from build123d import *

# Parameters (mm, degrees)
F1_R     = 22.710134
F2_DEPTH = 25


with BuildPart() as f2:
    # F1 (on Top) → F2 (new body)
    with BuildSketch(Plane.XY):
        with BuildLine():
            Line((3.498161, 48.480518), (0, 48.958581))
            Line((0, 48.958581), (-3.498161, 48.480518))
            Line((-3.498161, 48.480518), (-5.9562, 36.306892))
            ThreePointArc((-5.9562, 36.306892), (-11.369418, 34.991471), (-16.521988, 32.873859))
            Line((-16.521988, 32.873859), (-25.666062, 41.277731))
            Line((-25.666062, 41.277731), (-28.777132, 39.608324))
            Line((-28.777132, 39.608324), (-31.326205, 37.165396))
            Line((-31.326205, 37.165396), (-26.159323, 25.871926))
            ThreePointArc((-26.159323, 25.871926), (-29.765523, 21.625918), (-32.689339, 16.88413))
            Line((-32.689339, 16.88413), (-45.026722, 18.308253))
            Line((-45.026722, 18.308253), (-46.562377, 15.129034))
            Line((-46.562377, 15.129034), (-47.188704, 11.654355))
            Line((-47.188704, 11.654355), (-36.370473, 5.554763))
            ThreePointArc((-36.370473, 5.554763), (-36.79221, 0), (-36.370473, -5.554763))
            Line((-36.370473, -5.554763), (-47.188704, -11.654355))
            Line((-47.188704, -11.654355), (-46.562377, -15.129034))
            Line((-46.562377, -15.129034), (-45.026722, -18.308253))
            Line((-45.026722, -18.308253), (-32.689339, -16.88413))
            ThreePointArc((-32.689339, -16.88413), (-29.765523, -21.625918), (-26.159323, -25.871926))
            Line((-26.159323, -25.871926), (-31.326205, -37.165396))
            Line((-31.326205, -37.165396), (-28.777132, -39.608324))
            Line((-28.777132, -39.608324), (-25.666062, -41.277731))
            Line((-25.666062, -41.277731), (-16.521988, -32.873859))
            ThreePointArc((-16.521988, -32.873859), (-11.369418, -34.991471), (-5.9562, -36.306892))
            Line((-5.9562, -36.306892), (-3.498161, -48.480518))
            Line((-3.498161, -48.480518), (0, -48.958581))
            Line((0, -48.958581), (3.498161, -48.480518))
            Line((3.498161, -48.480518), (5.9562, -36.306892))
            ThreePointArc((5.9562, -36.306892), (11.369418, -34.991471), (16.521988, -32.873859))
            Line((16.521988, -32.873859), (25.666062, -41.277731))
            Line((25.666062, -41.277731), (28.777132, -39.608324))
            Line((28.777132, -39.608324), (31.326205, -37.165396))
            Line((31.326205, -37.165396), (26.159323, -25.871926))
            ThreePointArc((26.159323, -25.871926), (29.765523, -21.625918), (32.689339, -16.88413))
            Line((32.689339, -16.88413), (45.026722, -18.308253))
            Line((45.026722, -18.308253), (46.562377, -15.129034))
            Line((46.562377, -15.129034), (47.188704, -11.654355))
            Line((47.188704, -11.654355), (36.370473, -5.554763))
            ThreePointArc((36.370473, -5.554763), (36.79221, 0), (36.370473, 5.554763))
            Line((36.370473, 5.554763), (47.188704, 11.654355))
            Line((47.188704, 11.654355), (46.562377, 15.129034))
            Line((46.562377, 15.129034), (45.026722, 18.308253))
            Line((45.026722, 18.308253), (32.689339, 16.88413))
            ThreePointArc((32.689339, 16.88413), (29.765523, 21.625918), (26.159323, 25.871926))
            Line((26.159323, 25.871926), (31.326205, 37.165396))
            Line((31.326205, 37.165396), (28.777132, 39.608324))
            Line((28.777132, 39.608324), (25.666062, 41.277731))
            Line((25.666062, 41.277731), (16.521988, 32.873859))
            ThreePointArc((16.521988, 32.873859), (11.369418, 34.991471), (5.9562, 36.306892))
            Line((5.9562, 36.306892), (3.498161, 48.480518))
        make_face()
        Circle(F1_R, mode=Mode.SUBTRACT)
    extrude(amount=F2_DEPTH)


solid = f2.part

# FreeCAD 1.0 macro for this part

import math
import FreeCAD as App
import Part
import Sketcher

doc = App.newDocument("Part")
body = doc.addObject("PartDesign::Body", "Body")

# Sketch on XY plane
sketch1 = doc.addObject("Sketcher::SketchObject", "Sketch")
body.addObject(sketch1)
sketch1.AttachmentSupport = (doc.XY_Plane, [""])
sketch1.MapMode = "FlatFace"
sketch1.addGeometry([
    Part.LineSegment(App.Vector(3.498161, 48.480518, 0), App.Vector(0, 48.958581, 0)),  # 0
    Part.LineSegment(App.Vector(0, 48.958581, 0), App.Vector(-3.498161, 48.480518, 0)),  # 1
    Part.LineSegment(App.Vector(-3.498161, 48.480518, 0), App.Vector(-5.9562, 36.306892, 0)),  # 2
    Part.ArcOfCircle(Part.Circle(App.Vector(0.000002, 0, 0), App.Vector(0, 0, 1), 36.792211), math.radians(99.316475), math.radians(116.683529)),  # 3
    Part.LineSegment(App.Vector(-16.521988, 32.873859, 0), App.Vector(-25.666062, 41.277731, 0)),  # 4
    Part.LineSegment(App.Vector(-25.666062, 41.277731, 0), App.Vector(-28.777132, 39.608324, 0)),  # 5
    Part.LineSegment(App.Vector(-28.777132, 39.608324, 0), App.Vector(-31.326205, 37.165396, 0)),  # 6
    Part.LineSegment(App.Vector(-31.326205, 37.165396, 0), App.Vector(-26.159323, 25.871926, 0)),  # 7
    Part.ArcOfCircle(Part.Circle(App.Vector(0.000042, -0.00003, 0), App.Vector(0, 0, 1), 36.792261), math.radians(135.316485), math.radians(152.683515)),  # 8
    Part.LineSegment(App.Vector(-32.689339, 16.88413, 0), App.Vector(-45.026722, 18.308253, 0)),  # 9
    Part.LineSegment(App.Vector(-45.026722, 18.308253, 0), App.Vector(-46.562377, 15.129034, 0)),  # 10
    Part.LineSegment(App.Vector(-46.562377, 15.129034, 0), App.Vector(-47.188704, 11.654355, 0)),  # 11
    Part.LineSegment(App.Vector(-47.188704, 11.654355, 0), App.Vector(-36.370473, 5.554763, 0)),  # 12
    Part.ArcOfCircle(Part.Circle(App.Vector(-0.000022, 0, 0), App.Vector(0, 0, 1), 36.792188), math.radians(171.316468), math.radians(188.683532)),  # 13
    Part.LineSegment(App.Vector(-36.370473, -5.554763, 0), App.Vector(-47.188704, -11.654355, 0)),  # 14
    Part.LineSegment(App.Vector(-47.188704, -11.654355, 0), App.Vector(-46.562377, -15.129034, 0)),  # 15
    Part.LineSegment(App.Vector(-46.562377, -15.129034, 0), App.Vector(-45.026722, -18.308253, 0)),  # 16
    Part.LineSegment(App.Vector(-45.026722, -18.308253, 0), App.Vector(-32.689339, -16.88413, 0)),  # 17
    Part.ArcOfCircle(Part.Circle(App.Vector(0.000042, 0.00003, 0), App.Vector(0, 0, 1), 36.792261), math.radians(-152.683515), math.radians(-135.316485)),  # 18
    Part.LineSegment(App.Vector(-26.159323, -25.871926, 0), App.Vector(-31.326205, -37.165396, 0)),  # 19
    Part.LineSegment(App.Vector(-31.326205, -37.165396, 0), App.Vector(-28.777132, -39.608324, 0)),  # 20
    Part.LineSegment(App.Vector(-28.777132, -39.608324, 0), App.Vector(-25.666062, -41.277731, 0)),  # 21
    Part.LineSegment(App.Vector(-25.666062, -41.277731, 0), App.Vector(-16.521988, -32.873859, 0)),  # 22
    Part.ArcOfCircle(Part.Circle(App.Vector(0.000002, 0, 0), App.Vector(0, 0, 1), 36.792211), math.radians(-116.683529), math.radians(-99.316475)),  # 23
    Part.LineSegment(App.Vector(-5.9562, -36.306892, 0), App.Vector(-3.498161, -48.480518, 0)),  # 24
    Part.LineSegment(App.Vector(-3.498161, -48.480518, 0), App.Vector(0, -48.958581, 0)),  # 25
    Part.LineSegment(App.Vector(0, -48.958581, 0), App.Vector(3.498161, -48.480518, 0)),  # 26
    Part.LineSegment(App.Vector(3.498161, -48.480518, 0), App.Vector(5.9562, -36.306892, 0)),  # 27
    Part.ArcOfCircle(Part.Circle(App.Vector(-0.000002, 0, 0), App.Vector(0, 0, 1), 36.792211), math.radians(-80.683525), math.radians(-63.316471)),  # 28
    Part.LineSegment(App.Vector(16.521988, -32.873859, 0), App.Vector(25.666062, -41.277731, 0)),  # 29
    Part.LineSegment(App.Vector(25.666062, -41.277731, 0), App.Vector(28.777132, -39.608324, 0)),  # 30
    Part.LineSegment(App.Vector(28.777132, -39.608324, 0), App.Vector(31.326205, -37.165396, 0)),  # 31
    Part.LineSegment(App.Vector(31.326205, -37.165396, 0), App.Vector(26.159323, -25.871926, 0)),  # 32
    Part.ArcOfCircle(Part.Circle(App.Vector(-0.000042, 0.00003, 0), App.Vector(0, 0, 1), 36.792261), math.radians(-44.683515), math.radians(-27.316485)),  # 33
    Part.LineSegment(App.Vector(32.689339, -16.88413, 0), App.Vector(45.026722, -18.308253, 0)),  # 34
    Part.LineSegment(App.Vector(45.026722, -18.308253, 0), App.Vector(46.562377, -15.129034, 0)),  # 35
    Part.LineSegment(App.Vector(46.562377, -15.129034, 0), App.Vector(47.188704, -11.654355, 0)),  # 36
    Part.LineSegment(App.Vector(47.188704, -11.654355, 0), App.Vector(36.370473, -5.554763, 0)),  # 37
    Part.ArcOfCircle(Part.Circle(App.Vector(0.000022, 0, 0), App.Vector(0, 0, 1), 36.792188), math.radians(-8.683532), math.radians(8.683532)),  # 38
    Part.LineSegment(App.Vector(36.370473, 5.554763, 0), App.Vector(47.188704, 11.654355, 0)),  # 39
    Part.LineSegment(App.Vector(47.188704, 11.654355, 0), App.Vector(46.562377, 15.129034, 0)),  # 40
    Part.LineSegment(App.Vector(46.562377, 15.129034, 0), App.Vector(45.026722, 18.308253, 0)),  # 41
    Part.LineSegment(App.Vector(45.026722, 18.308253, 0), App.Vector(32.689339, 16.88413, 0)),  # 42
    Part.ArcOfCircle(Part.Circle(App.Vector(-0.000042, -0.00003, 0), App.Vector(0, 0, 1), 36.792261), math.radians(27.316485), math.radians(44.683515)),  # 43
    Part.LineSegment(App.Vector(26.159323, 25.871926, 0), App.Vector(31.326205, 37.165396, 0)),  # 44
    Part.LineSegment(App.Vector(31.326205, 37.165396, 0), App.Vector(28.777132, 39.608324, 0)),  # 45
    Part.LineSegment(App.Vector(28.777132, 39.608324, 0), App.Vector(25.666062, 41.277731, 0)),  # 46
    Part.LineSegment(App.Vector(25.666062, 41.277731, 0), App.Vector(16.521988, 32.873859, 0)),  # 47
    Part.ArcOfCircle(Part.Circle(App.Vector(-0.000002, 0, 0), App.Vector(0, 0, 1), 36.792211), math.radians(63.316471), math.radians(80.683525)),  # 48
    Part.LineSegment(App.Vector(5.9562, 36.306892, 0), App.Vector(3.498161, 48.480518, 0)),  # 49
    Part.Circle(App.Vector(0, 0, 0), App.Vector(0, 0, 1), 22.710134),  # 50
], False)
sketch1.addConstraint([
    Sketcher.Constraint("Coincident", 0, 2, 1, 1),
    Sketcher.Constraint("Coincident", 1, 2, 2, 1),
    Sketcher.Constraint("Coincident", 2, 2, 3, 1),
    Sketcher.Constraint("Coincident", 3, 2, 4, 1),
    Sketcher.Constraint("Coincident", 4, 2, 5, 1),
    Sketcher.Constraint("Coincident", 5, 2, 6, 1),
    Sketcher.Constraint("Coincident", 6, 2, 7, 1),
    Sketcher.Constraint("Coincident", 7, 2, 8, 1),
    Sketcher.Constraint("Coincident", 8, 2, 9, 1),
    Sketcher.Constraint("Coincident", 9, 2, 10, 1),
    Sketcher.Constraint("Coincident", 10, 2, 11, 1),
    Sketcher.Constraint("Coincident", 11, 2, 12, 1),
    Sketcher.Constraint("Coincident", 12, 2, 13, 1),
    Sketcher.Constraint("Coincident", 13, 2, 14, 1),
    Sketcher.Constraint("Coincident", 14, 2, 15, 1),
    Sketcher.Constraint("Coincident", 15, 2, 16, 1),
    Sketcher.Constraint("Coincident", 16, 2, 17, 1),
    Sketcher.Constraint("Coincident", 17, 2, 18, 1),
    Sketcher.Constraint("Coincident", 18, 2, 19, 1),
    Sketcher.Constraint("Coincident", 19, 2, 20, 1),
    Sketcher.Constraint("Coincident", 20, 2, 21, 1),
    Sketcher.Constraint("Coincident", 21, 2, 22, 1),
    Sketcher.Constraint("Coincident", 22, 2, 23, 1),
    Sketcher.Constraint("Coincident", 23, 2, 24, 1),
    Sketcher.Constraint("Coincident", 24, 2, 25, 1),
    Sketcher.Constraint("Coincident", 25, 2, 26, 1),
    Sketcher.Constraint("Coincident", 26, 2, 27, 1),
    Sketcher.Constraint("Coincident", 27, 2, 28, 1),
    Sketcher.Constraint("Coincident", 28, 2, 29, 1),
    Sketcher.Constraint("Coincident", 29, 2, 30, 1),
    Sketcher.Constraint("Coincident", 30, 2, 31, 1),
    Sketcher.Constraint("Coincident", 31, 2, 32, 1),
    Sketcher.Constraint("Coincident", 32, 2, 33, 1),
    Sketcher.Constraint("Coincident", 33, 2, 34, 1),
    Sketcher.Constraint("Coincident", 34, 2, 35, 1),
    Sketcher.Constraint("Coincident", 35, 2, 36, 1),
    Sketcher.Constraint("Coincident", 36, 2, 37, 1),
    Sketcher.Constraint("Coincident", 37, 2, 38, 1),
    Sketcher.Constraint("Coincident", 38, 2, 39, 1),
    Sketcher.Constraint("Coincident", 39, 2, 40, 1),
    Sketcher.Constraint("Coincident", 40, 2, 41, 1),
    Sketcher.Constraint("Coincident", 41, 2, 42, 1),
    Sketcher.Constraint("Coincident", 42, 2, 43, 1),
    Sketcher.Constraint("Coincident", 43, 2, 44, 1),
    Sketcher.Constraint("Coincident", 44, 2, 45, 1),
    Sketcher.Constraint("Coincident", 45, 2, 46, 1),
    Sketcher.Constraint("Coincident", 46, 2, 47, 1),
    Sketcher.Constraint("Coincident", 47, 2, 48, 1),
    Sketcher.Constraint("Coincident", 48, 2, 49, 1),
    Sketcher.Constraint("Coincident", 49, 2, 0, 1),
    Sketcher.Constraint("Coincident", 3, 3, -1, 1),
    Sketcher.Constraint("Coincident", 23, 3, -1, 1),
    Sketcher.Constraint("Coincident", 28, 3, -1, 1),
    Sketcher.Constraint("Coincident", 48, 3, -1, 1),
    Sketcher.Constraint("Coincident", 50, 3, -1, 1),
    Sketcher.Constraint("Equal", 8, 18),
    Sketcher.Constraint("Equal", 3, 23),
    Sketcher.Constraint("Equal", 23, 28),
    Sketcher.Constraint("Equal", 18, 33),
    Sketcher.Constraint("Equal", 13, 38),
    Sketcher.Constraint("Equal", 33, 43),
    Sketcher.Constraint("Equal", 28, 48),
    Sketcher.Constraint("Symmetric", 8, 3, 33, 3, -1, 1),
    Sketcher.Constraint("Symmetric", 13, 3, 38, 3, -1, 1),
    Sketcher.Constraint("Symmetric", 18, 3, 43, 3, -1, 1),
    Sketcher.Constraint("Symmetric", 0, 2, 25, 2, -1, 1),
    Sketcher.Constraint("Symmetric", 1, 2, 26, 2, -1, 1),
    Sketcher.Constraint("Symmetric", 4, 2, 29, 2, -1, 1),
    Sketcher.Constraint("Symmetric", 5, 2, 30, 2, -1, 1),
    Sketcher.Constraint("Symmetric", 6, 2, 31, 2, -1, 1),
    Sketcher.Constraint("Symmetric", 9, 2, 34, 2, -1, 1),
    Sketcher.Constraint("Symmetric", 10, 2, 35, 2, -1, 1),
    Sketcher.Constraint("Symmetric", 11, 2, 36, 2, -1, 1),
    Sketcher.Constraint("Symmetric", 14, 2, 39, 2, -1, 1),
    Sketcher.Constraint("Symmetric", 15, 2, 40, 2, -1, 1),
    Sketcher.Constraint("Symmetric", 16, 2, 41, 2, -1, 1),
    Sketcher.Constraint("Symmetric", 19, 2, 44, 2, -1, 1),
    Sketcher.Constraint("Symmetric", 20, 2, 45, 2, -1, 1),
    Sketcher.Constraint("Symmetric", 21, 2, 46, 2, -1, 1),
    Sketcher.Constraint("Symmetric", 24, 2, 49, 2, -1, 1),
    Sketcher.Constraint("Symmetric", 18, 3, 33, 3, -2),
    Sketcher.Constraint("Symmetric", 24, 2, 26, 2, -2),
    Sketcher.Constraint("Symmetric", 21, 2, 29, 2, -2),
    Sketcher.Constraint("Symmetric", 20, 2, 30, 2, -2),
    Sketcher.Constraint("Symmetric", 19, 2, 31, 2, -2),
    Sketcher.Constraint("Symmetric", 16, 2, 34, 2, -2),
    Sketcher.Constraint("Symmetric", 15, 2, 35, 2, -2),
    Sketcher.Constraint("Symmetric", 14, 2, 36, 2, -2),
    Sketcher.Constraint("Symmetric", 13, 2, 37, 2, -2),
    Sketcher.Constraint("PointOnObject", 0, 2, -2),
    Sketcher.Constraint("Parallel", 2, 27),
    Sketcher.Constraint("Parallel", 4, 29),
    Sketcher.Constraint("Parallel", 7, 32),
    Sketcher.Constraint("Parallel", 9, 34),
    Sketcher.Constraint("Parallel", 12, 37),
    Sketcher.Constraint("Parallel", 14, 39),
    Sketcher.Constraint("Parallel", 17, 42),
    Sketcher.Constraint("Parallel", 19, 44),
    Sketcher.Constraint("Parallel", 22, 47),
    Sketcher.Constraint("Parallel", 24, 49),
    Sketcher.Constraint("Horizontal", 23, 2, 27, 2),
    Sketcher.Constraint("Horizontal", 22, 2, 28, 2),
    Sketcher.Constraint("Horizontal", 18, 2, 32, 2),
    Sketcher.Constraint("Horizontal", 17, 2, 33, 2),
    Sketcher.Constraint("Equal", 2, 4),
    Sketcher.Constraint("Equal", 1, 5),
    Sketcher.Constraint("Equal", 5, 6),
    Sketcher.Constraint("Equal", 4, 7),
    Sketcher.Constraint("Equal", 7, 9),
    Sketcher.Constraint("Equal", 6, 10),
    Sketcher.Constraint("Equal", 10, 11),
    Sketcher.Constraint("Equal", 9, 12),
    Sketcher.Constraint("Radius", 3, 36.792211),
    Sketcher.Constraint("Radius", 8, 36.792261),
    Sketcher.Constraint("Radius", 13, 36.792188),
    Sketcher.Constraint("Diameter", 50, 45.420268),
    Sketcher.Constraint("DistanceX", 2, 2, -1, 1, 5.9562),
    Sketcher.Constraint("DistanceY", -1, 1, 0, 2, 48.958581),
    Sketcher.Constraint("DistanceX", 1, 2, -1, 1, 3.498161),
    Sketcher.Constraint("DistanceX", 3, 2, -1, 1, 16.521988),
    Sketcher.Constraint("DistanceX", 4, 2, -1, 1, 25.666062),
    Sketcher.Constraint("DistanceY", -1, 1, 4, 2, 41.277731),
    Sketcher.Constraint("DistanceX", 8, 2, -1, 1, 32.689339),
    Sketcher.Constraint("DistanceY", -1, 1, 8, 2, 16.88413),
    Sketcher.Constraint("DistanceX", 5, 2, -1, 1, 28.777132),
    Sketcher.Constraint("DistanceX", 6, 2, -1, 1, 31.326205),
    Sketcher.Constraint("DistanceX", 7, 2, -1, 1, 26.159323),
    Sketcher.Constraint("DistanceX", 9, 2, -1, 1, 45.026722),
    Sketcher.Constraint("DistanceX", 10, 2, -1, 1, 46.562377),
    Sketcher.Constraint("DistanceX", 11, 2, -1, 1, 47.188704),
    Sketcher.Constraint("DistanceX", 12, 2, -1, 1, 36.370473),
])
pad1 = doc.addObject("PartDesign::Pad", "Pad")
body.addObject(pad1)
pad1.Profile = sketch1
pad1.Length = 25

doc.recompute()
